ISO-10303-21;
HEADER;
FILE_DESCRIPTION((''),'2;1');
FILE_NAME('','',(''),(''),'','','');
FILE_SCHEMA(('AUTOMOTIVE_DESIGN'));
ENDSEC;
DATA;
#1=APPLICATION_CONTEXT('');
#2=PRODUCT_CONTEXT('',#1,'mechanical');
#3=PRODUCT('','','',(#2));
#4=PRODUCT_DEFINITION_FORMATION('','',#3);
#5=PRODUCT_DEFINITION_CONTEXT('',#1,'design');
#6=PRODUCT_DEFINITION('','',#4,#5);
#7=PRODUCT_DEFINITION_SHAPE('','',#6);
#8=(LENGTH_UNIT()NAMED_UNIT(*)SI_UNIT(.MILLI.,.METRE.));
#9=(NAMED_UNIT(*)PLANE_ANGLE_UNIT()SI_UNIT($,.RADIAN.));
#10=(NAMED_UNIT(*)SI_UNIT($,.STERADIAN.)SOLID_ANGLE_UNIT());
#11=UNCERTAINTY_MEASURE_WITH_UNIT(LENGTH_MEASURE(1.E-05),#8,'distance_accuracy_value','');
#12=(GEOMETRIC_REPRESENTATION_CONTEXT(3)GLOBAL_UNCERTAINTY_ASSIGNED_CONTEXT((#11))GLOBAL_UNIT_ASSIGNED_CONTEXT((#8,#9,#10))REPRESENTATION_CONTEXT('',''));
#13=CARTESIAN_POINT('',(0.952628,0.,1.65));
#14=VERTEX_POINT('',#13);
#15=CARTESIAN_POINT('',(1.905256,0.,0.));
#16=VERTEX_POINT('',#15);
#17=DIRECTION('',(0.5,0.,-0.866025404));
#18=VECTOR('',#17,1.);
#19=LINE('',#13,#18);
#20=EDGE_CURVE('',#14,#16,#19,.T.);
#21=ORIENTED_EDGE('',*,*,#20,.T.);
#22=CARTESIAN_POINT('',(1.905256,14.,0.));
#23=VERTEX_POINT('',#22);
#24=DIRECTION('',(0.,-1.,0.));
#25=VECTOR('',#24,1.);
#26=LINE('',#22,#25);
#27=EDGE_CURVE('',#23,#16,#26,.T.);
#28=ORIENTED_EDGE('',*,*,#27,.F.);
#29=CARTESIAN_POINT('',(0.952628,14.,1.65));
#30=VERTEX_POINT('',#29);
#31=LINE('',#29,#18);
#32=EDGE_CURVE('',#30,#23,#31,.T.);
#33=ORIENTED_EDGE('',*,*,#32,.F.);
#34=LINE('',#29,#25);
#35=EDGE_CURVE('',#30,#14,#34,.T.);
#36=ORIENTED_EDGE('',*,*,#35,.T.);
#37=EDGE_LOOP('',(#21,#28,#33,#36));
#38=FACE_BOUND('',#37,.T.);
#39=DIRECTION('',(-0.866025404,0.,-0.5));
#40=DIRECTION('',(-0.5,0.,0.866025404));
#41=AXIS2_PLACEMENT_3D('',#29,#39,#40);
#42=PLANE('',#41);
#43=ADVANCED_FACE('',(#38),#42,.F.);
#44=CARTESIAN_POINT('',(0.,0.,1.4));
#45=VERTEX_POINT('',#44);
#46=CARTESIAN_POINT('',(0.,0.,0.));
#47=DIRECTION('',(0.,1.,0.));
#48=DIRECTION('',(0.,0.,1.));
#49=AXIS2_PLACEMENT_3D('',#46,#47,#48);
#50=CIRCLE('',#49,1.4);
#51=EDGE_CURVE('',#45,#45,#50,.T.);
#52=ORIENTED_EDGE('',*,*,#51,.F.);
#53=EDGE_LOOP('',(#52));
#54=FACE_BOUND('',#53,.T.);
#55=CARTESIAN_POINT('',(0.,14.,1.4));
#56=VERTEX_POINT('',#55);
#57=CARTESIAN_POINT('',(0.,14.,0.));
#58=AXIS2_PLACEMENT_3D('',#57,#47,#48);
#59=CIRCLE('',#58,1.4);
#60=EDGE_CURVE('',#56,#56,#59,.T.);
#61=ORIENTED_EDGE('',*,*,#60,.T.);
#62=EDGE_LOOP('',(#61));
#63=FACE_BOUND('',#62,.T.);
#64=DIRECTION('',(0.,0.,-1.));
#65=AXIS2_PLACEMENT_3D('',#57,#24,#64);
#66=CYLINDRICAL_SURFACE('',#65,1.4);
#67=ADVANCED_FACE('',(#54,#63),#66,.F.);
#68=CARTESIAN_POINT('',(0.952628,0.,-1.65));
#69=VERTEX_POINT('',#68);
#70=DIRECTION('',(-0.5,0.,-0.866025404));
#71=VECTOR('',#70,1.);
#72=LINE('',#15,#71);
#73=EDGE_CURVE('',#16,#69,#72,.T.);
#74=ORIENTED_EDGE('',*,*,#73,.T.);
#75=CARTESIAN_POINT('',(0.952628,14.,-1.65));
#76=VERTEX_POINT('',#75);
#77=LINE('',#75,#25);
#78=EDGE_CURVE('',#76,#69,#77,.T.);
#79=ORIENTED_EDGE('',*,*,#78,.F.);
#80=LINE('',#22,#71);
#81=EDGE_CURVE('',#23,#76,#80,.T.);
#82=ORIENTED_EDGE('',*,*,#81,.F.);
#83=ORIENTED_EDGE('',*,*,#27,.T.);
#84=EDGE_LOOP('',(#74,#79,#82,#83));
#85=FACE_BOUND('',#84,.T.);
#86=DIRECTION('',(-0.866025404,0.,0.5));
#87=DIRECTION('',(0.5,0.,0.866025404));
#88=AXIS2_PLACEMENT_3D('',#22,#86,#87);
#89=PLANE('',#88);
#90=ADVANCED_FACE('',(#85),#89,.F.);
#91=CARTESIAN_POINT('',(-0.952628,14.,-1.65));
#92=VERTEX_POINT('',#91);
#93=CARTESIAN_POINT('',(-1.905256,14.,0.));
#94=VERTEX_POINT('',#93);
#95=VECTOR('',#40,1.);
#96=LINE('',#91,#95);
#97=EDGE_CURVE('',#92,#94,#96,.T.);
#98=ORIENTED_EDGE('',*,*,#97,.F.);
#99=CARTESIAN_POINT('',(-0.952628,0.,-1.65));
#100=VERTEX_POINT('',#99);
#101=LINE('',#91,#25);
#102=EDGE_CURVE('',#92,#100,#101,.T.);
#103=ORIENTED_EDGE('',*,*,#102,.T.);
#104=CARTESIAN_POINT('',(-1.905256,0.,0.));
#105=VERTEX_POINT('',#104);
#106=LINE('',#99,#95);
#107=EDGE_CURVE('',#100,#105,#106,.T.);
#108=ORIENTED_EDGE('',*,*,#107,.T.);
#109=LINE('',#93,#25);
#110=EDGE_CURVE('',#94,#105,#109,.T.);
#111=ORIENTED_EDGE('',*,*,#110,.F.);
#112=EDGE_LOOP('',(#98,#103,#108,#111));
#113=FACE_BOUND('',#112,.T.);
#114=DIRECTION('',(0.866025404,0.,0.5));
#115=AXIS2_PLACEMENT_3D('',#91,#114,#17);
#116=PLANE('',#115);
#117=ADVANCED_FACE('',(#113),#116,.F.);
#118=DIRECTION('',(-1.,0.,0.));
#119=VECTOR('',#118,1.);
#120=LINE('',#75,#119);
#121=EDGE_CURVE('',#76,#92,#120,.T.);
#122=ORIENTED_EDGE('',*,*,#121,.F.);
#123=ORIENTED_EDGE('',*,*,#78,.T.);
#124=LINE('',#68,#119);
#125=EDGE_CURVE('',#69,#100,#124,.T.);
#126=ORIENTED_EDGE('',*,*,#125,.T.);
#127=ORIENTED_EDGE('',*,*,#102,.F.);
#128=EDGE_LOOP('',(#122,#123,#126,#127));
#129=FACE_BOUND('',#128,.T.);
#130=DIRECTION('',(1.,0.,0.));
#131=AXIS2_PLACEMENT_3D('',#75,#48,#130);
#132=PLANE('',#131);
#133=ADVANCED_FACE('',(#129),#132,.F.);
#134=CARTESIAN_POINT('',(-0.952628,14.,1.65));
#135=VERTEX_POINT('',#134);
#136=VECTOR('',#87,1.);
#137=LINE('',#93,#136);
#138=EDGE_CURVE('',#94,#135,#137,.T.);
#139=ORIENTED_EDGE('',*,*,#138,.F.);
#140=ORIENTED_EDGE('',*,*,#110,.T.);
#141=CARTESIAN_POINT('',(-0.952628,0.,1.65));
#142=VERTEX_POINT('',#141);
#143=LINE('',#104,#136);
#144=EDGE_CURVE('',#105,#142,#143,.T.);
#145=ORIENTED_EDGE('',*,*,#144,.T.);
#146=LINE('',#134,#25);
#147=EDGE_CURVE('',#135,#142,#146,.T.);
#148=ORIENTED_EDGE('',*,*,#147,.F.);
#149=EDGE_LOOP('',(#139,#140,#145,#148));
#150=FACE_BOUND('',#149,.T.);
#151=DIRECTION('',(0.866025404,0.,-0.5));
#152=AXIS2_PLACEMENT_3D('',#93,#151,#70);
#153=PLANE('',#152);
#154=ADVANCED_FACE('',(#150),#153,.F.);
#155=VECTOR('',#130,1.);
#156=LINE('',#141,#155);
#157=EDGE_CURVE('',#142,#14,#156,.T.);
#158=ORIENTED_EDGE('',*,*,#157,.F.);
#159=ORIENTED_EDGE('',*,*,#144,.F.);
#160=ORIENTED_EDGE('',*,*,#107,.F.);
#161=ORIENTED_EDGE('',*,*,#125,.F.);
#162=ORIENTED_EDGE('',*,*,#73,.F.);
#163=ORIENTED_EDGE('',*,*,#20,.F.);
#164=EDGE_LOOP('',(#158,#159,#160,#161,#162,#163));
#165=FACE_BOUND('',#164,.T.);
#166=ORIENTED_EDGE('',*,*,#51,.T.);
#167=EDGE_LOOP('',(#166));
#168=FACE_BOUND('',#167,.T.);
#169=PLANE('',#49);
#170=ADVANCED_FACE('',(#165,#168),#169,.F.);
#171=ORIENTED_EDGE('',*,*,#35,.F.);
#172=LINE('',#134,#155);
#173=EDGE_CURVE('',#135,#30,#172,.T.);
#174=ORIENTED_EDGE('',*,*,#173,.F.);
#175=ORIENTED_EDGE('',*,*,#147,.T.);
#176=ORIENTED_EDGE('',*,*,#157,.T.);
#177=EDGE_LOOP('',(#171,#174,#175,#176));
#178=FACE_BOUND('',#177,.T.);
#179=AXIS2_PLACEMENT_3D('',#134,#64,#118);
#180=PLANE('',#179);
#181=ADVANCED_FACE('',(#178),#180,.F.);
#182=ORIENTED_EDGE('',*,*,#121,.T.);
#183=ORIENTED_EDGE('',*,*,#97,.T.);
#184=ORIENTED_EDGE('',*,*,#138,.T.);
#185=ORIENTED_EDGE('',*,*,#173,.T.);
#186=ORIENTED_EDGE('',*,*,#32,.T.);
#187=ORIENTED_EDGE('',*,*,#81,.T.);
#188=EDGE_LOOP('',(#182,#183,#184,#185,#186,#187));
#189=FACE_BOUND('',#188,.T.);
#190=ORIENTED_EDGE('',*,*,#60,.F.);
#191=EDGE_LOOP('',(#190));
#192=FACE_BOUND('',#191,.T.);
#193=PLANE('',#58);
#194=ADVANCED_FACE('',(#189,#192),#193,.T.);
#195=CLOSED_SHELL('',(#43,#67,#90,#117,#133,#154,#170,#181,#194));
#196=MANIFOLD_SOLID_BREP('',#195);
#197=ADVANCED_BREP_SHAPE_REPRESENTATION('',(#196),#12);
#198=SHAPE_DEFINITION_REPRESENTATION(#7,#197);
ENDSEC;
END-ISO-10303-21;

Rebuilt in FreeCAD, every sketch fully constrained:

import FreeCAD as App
import Part
import Sketcher
Q = App.Units.Quantity


def add_polygon(sketch, points):
    """Adds a closed chain of lines whose ends are joined by coincident constraints."""
    first, n = sketch.GeometryCount, len(points)
    for a, b in zip(points, points[1:] + points[:1]):
        sketch.addGeometry(Part.LineSegment(App.Vector(*a, 0), App.Vector(*b, 0)), False)
    for i in range(n):
        sketch.addConstraint(Sketcher.Constraint("Coincident", first + i, 2, first + (i + 1) % n, 1))

doc = App.newDocument("Part")
body = doc.addObject("PartDesign::Body", "Body")

# Sketch on XZ plane
sketch1 = body.newObject("Sketcher::SketchObject", "Sketch")
sketch1.AttachmentSupport = (doc.getObject("XZ_Plane"), [""])
sketch1.MapMode = "FlatFace"
add_polygon(sketch1, [(1.905256, 0), (0.952628, -1.65), (-0.952628, -1.65), (-1.905256, 0), (-0.952628, 1.65), (0.952628, 1.65)])  # lines 0-5
sketch1.addGeometry(Part.Circle(App.Vector(0, 0, 0), App.Vector(0, 0, 1), 1.4), False)  # 6
sketch1.addConstraint([
    Sketcher.Constraint("Horizontal", 1),
    Sketcher.Constraint("Horizontal", 4),
    Sketcher.Constraint("Coincident", 6, 3, -1, 1),
    Sketcher.Constraint("Symmetric", 0, 2, 3, 2, -1, 1),
    Sketcher.Constraint("Symmetric", 2, 2, 5, 2, -1, 1),
    Sketcher.Constraint("PointOnObject", 2, 2, -1),
    Sketcher.Constraint("Parallel", 2, 5),
    Sketcher.Constraint("Vertical", 1, 2, 3, 2),
    Sketcher.Constraint("Diameter", 6, 2.8),
    Sketcher.Constraint("Angle", 0, Q("-120 deg")),
    Sketcher.Constraint("DistanceY", 1, 2, 3, 2, 3.3),
    Sketcher.Constraint("DistanceX", 1, 2, 1, 1, 1.905256),
])
pad1 = body.newObject("PartDesign::Pad", "Pad")
pad1.Profile = sketch1
pad1.Length = 14
pad1.Reversed = True

doc.recompute()
